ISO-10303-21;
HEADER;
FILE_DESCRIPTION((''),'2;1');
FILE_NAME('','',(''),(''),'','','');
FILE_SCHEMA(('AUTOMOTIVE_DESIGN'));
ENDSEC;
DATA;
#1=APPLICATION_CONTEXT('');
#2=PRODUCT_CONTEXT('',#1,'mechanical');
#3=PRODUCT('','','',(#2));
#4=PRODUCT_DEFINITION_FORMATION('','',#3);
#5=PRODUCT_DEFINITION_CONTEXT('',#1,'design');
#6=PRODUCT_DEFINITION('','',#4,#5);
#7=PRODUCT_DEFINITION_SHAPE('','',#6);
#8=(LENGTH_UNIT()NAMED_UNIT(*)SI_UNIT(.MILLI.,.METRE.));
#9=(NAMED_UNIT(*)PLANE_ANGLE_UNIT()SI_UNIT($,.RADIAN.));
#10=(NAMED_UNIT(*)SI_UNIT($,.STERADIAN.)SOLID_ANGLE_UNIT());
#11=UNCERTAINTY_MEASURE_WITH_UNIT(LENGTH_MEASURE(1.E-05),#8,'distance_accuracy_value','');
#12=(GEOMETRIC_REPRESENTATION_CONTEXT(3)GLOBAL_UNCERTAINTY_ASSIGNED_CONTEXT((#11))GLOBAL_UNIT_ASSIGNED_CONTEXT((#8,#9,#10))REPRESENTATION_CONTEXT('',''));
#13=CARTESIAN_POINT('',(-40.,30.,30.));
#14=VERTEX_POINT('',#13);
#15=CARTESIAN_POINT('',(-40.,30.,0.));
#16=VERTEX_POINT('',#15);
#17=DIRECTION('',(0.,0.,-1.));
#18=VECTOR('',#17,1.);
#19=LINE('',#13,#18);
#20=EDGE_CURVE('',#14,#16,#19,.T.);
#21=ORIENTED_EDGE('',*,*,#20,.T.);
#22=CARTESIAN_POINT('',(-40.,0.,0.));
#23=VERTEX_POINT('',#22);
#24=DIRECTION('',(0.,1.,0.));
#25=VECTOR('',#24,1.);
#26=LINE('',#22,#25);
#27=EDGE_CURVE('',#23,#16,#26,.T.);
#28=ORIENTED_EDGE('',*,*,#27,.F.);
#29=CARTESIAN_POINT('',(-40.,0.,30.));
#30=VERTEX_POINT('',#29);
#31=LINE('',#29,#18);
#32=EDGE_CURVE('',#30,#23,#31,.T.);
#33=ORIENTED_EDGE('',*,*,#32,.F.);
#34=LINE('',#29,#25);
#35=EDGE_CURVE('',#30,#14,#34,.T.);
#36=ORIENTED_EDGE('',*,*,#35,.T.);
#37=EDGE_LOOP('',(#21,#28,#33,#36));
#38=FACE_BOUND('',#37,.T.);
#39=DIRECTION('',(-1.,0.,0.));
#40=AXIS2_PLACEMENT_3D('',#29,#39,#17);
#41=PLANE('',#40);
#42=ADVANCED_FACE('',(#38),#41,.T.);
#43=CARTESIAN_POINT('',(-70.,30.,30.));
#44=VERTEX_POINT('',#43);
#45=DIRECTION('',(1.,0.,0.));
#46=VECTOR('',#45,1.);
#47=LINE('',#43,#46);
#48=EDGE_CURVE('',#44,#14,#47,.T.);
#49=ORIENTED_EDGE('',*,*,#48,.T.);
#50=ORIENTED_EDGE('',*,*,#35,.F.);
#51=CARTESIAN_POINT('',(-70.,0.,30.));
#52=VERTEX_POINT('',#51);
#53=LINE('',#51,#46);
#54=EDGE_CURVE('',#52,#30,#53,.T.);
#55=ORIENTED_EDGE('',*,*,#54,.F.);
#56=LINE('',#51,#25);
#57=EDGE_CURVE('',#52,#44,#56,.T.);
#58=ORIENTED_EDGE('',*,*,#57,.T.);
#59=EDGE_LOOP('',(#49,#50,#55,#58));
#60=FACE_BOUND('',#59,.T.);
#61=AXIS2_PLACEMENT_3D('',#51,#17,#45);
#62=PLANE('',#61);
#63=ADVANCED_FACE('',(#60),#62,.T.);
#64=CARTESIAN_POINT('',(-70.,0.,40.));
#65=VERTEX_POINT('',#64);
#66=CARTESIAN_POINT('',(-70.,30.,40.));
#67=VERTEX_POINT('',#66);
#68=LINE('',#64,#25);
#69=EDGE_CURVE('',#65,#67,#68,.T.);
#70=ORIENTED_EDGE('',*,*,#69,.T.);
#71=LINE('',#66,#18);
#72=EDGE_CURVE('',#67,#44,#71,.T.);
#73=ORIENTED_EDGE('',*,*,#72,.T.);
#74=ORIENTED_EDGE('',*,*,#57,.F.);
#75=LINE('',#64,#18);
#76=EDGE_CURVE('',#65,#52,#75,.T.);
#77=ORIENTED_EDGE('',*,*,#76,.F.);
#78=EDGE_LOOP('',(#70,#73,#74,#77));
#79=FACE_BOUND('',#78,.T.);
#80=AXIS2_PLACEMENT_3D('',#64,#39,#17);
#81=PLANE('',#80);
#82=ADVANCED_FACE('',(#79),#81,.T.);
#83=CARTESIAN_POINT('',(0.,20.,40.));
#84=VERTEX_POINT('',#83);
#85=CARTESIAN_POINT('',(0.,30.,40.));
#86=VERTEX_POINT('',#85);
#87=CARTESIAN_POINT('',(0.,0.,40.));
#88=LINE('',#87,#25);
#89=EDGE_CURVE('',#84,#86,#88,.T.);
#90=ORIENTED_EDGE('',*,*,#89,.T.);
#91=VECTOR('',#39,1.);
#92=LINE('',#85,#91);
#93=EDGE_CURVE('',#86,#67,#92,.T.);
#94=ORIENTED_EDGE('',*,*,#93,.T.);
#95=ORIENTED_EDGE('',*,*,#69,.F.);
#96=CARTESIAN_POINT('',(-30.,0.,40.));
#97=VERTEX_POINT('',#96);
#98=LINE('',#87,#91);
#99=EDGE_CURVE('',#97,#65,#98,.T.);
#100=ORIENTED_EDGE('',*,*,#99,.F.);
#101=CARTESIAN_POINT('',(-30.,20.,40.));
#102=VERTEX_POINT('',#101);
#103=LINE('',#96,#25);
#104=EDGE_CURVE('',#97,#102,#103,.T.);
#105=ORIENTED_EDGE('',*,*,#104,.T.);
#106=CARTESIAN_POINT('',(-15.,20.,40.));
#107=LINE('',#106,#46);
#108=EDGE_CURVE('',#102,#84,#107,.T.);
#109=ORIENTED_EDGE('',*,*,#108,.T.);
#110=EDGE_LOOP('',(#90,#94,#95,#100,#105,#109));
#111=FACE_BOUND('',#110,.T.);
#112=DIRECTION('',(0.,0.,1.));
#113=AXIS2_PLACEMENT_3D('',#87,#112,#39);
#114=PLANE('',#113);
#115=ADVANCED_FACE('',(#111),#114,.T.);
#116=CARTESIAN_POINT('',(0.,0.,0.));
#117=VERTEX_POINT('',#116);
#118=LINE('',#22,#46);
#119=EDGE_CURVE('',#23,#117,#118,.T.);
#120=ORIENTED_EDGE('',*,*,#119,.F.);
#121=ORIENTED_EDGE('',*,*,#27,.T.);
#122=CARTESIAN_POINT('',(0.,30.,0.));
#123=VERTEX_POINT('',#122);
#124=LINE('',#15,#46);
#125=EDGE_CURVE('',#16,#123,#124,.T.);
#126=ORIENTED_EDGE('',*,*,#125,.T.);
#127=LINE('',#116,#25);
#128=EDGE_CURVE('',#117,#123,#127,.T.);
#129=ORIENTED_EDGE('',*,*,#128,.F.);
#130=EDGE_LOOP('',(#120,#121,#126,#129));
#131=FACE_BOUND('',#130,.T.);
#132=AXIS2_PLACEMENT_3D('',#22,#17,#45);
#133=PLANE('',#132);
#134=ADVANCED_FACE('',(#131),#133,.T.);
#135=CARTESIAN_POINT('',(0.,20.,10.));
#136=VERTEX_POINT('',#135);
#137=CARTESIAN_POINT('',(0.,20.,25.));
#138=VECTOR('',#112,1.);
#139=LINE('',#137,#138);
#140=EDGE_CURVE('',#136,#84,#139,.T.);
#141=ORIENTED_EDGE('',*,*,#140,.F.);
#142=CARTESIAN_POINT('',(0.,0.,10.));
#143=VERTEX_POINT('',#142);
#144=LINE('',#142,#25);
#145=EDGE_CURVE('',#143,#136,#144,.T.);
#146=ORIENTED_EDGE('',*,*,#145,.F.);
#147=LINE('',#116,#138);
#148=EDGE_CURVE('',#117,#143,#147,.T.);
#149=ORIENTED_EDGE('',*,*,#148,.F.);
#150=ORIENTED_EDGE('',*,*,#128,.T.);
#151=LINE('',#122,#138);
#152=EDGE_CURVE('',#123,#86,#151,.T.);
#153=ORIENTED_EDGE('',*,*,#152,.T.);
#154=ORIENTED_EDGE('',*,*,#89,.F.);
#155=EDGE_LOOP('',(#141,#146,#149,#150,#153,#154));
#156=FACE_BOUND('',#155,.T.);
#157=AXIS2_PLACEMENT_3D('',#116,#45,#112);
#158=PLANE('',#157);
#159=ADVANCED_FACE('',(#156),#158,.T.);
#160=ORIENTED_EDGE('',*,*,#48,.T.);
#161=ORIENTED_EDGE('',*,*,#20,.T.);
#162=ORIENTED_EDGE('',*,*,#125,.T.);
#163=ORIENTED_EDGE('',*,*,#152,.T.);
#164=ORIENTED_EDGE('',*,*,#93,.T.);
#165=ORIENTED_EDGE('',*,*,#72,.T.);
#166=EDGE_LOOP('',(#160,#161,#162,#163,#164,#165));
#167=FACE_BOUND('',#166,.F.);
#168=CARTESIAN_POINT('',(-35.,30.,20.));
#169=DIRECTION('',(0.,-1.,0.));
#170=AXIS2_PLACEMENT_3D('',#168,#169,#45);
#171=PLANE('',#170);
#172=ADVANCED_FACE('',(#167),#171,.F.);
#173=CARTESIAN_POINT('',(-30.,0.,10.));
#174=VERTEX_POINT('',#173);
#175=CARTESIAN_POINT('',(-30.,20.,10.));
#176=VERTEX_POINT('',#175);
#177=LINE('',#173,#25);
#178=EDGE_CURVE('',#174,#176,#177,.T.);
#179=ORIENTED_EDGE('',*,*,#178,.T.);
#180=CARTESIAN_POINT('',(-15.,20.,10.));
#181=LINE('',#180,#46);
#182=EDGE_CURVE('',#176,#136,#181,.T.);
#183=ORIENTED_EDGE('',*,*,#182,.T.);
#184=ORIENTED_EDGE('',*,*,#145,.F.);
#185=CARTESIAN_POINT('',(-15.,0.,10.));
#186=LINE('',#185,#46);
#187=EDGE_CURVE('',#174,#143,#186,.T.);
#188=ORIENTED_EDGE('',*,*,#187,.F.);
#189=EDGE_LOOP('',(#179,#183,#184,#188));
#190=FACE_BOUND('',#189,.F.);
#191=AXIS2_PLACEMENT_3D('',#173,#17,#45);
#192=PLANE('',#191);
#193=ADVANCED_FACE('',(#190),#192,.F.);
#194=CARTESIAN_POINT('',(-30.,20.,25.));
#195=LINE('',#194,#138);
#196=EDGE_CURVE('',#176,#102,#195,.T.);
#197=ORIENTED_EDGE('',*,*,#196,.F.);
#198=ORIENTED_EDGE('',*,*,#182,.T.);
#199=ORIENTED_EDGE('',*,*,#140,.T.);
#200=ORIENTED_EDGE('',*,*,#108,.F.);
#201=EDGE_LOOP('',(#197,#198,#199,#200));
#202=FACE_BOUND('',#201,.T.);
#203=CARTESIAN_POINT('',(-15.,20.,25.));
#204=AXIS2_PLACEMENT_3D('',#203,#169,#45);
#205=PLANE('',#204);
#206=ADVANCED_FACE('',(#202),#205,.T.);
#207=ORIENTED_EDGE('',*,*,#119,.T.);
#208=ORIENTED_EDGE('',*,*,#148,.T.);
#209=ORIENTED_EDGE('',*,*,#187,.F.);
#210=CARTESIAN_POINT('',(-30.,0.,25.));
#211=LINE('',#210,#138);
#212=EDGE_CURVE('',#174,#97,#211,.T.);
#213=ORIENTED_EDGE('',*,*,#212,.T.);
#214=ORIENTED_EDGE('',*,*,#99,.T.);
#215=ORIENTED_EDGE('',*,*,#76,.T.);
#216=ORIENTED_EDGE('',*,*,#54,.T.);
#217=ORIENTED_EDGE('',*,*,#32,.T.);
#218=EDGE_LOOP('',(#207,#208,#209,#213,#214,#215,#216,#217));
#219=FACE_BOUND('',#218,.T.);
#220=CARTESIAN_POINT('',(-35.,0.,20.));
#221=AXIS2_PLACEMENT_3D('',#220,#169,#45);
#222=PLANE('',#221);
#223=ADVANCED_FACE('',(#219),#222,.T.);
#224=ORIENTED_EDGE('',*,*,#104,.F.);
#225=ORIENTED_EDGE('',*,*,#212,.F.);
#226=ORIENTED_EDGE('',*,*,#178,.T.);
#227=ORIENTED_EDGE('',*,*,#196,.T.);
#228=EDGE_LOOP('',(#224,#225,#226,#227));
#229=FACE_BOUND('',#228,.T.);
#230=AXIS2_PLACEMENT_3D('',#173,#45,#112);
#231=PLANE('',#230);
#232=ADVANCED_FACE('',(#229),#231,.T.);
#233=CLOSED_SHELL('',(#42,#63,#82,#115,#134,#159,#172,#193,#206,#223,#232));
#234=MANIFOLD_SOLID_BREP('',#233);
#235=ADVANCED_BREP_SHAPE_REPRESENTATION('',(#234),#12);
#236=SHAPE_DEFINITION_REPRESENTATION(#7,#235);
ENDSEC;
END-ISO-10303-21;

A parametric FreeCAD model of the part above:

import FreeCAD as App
import Part
import Sketcher
from FreeCAD import Vector


def add_polygon(sketch, points):
    """Adds a closed chain of lines whose ends are joined by coincident constraints."""
    first, n = sketch.GeometryCount, len(points)
    for a, b in zip(points, points[1:] + points[:1]):
        sketch.addGeometry(Part.LineSegment(App.Vector(*a, 0), App.Vector(*b, 0)), False)
    for i in range(n):
        sketch.addConstraint(Sketcher.Constraint("Coincident", first + i, 2, first + (i + 1) % n, 1))

doc = App.newDocument("Part")
body = doc.addObject("PartDesign::Body", "Body")

# Sketch on XZ plane
sketch1 = body.newObject("Sketcher::SketchObject", "Sketch")
sketch1.AttachmentSupport = (doc.getObject("XZ_Plane"), [""])
sketch1.MapMode = "FlatFace"
add_polygon(sketch1, [(-70, 40), (-70, 30), (-40, 30), (-40, 0), (0, 0), (0, 40)])  # lines 0-5
sketch1.addConstraint(Sketcher.Constraint("Vertical", 0))
sketch1.addConstraint(Sketcher.Constraint("Horizontal", 1))
sketch1.addConstraint(Sketcher.Constraint("Vertical", 2))
sketch1.addConstraint(Sketcher.Constraint("Horizontal", 3))
sketch1.addConstraint(Sketcher.Constraint("Vertical", 4))
sketch1.addConstraint(Sketcher.Constraint("Horizontal", 5))
sketch1.addConstraint(Sketcher.Constraint("Coincident", 3, 2, -1, 1))
sketch1.addConstraint(Sketcher.Constraint("Equal", 1, 2))
sketch1.addConstraint(Sketcher.Constraint("Equal", 3, 4))
sketch1.addConstraint(Sketcher.Constraint("DistanceX", 1, 1, 1, 2, 30.0))
sketch1.addConstraint(Sketcher.Constraint("DistanceX", 3, 1, 3, 2, 40.0))
pad1 = body.newObject("PartDesign::Pad", "Pad")
pad1.Profile = sketch1
pad1.Length = 30
pad1.Reversed = True

# Sketch on XZ plane
sketch2 = body.newObject("Sketcher::SketchObject", "Sketch001")
sketch2.AttachmentSupport = (doc.getObject("XZ_Plane"), [""])
sketch2.MapMode = "FlatFace"
add_polygon(sketch2, [(-30, 40), (-30, 10), (0, 10), (0, 40)])  # lines 0-3
sketch2.addConstraint(Sketcher.Constraint("Vertical", 0))
sketch2.addConstraint(Sketcher.Constraint("Horizontal", 1))
sketch2.addConstraint(Sketcher.Constraint("Vertical", 2))
sketch2.addConstraint(Sketcher.Constraint("Horizontal", 3))
sketch2.addConstraint(Sketcher.Constraint("PointOnObject", 1, 2, -2))
sketch2.addConstraint(Sketcher.Constraint("Equal", 3, 0))
sketch2.addConstraint(Sketcher.Constraint("DistanceX", 1, 1, 1, 2, 30.0))
sketch2.addConstraint(Sketcher.Constraint("DistanceY", -1, 1, 0, 2, 10.0))
pocket1 = body.newObject("PartDesign::Pocket", "Pocket")
pocket1.Profile = sketch2
pocket1.Length = 20

doc.recompute()
